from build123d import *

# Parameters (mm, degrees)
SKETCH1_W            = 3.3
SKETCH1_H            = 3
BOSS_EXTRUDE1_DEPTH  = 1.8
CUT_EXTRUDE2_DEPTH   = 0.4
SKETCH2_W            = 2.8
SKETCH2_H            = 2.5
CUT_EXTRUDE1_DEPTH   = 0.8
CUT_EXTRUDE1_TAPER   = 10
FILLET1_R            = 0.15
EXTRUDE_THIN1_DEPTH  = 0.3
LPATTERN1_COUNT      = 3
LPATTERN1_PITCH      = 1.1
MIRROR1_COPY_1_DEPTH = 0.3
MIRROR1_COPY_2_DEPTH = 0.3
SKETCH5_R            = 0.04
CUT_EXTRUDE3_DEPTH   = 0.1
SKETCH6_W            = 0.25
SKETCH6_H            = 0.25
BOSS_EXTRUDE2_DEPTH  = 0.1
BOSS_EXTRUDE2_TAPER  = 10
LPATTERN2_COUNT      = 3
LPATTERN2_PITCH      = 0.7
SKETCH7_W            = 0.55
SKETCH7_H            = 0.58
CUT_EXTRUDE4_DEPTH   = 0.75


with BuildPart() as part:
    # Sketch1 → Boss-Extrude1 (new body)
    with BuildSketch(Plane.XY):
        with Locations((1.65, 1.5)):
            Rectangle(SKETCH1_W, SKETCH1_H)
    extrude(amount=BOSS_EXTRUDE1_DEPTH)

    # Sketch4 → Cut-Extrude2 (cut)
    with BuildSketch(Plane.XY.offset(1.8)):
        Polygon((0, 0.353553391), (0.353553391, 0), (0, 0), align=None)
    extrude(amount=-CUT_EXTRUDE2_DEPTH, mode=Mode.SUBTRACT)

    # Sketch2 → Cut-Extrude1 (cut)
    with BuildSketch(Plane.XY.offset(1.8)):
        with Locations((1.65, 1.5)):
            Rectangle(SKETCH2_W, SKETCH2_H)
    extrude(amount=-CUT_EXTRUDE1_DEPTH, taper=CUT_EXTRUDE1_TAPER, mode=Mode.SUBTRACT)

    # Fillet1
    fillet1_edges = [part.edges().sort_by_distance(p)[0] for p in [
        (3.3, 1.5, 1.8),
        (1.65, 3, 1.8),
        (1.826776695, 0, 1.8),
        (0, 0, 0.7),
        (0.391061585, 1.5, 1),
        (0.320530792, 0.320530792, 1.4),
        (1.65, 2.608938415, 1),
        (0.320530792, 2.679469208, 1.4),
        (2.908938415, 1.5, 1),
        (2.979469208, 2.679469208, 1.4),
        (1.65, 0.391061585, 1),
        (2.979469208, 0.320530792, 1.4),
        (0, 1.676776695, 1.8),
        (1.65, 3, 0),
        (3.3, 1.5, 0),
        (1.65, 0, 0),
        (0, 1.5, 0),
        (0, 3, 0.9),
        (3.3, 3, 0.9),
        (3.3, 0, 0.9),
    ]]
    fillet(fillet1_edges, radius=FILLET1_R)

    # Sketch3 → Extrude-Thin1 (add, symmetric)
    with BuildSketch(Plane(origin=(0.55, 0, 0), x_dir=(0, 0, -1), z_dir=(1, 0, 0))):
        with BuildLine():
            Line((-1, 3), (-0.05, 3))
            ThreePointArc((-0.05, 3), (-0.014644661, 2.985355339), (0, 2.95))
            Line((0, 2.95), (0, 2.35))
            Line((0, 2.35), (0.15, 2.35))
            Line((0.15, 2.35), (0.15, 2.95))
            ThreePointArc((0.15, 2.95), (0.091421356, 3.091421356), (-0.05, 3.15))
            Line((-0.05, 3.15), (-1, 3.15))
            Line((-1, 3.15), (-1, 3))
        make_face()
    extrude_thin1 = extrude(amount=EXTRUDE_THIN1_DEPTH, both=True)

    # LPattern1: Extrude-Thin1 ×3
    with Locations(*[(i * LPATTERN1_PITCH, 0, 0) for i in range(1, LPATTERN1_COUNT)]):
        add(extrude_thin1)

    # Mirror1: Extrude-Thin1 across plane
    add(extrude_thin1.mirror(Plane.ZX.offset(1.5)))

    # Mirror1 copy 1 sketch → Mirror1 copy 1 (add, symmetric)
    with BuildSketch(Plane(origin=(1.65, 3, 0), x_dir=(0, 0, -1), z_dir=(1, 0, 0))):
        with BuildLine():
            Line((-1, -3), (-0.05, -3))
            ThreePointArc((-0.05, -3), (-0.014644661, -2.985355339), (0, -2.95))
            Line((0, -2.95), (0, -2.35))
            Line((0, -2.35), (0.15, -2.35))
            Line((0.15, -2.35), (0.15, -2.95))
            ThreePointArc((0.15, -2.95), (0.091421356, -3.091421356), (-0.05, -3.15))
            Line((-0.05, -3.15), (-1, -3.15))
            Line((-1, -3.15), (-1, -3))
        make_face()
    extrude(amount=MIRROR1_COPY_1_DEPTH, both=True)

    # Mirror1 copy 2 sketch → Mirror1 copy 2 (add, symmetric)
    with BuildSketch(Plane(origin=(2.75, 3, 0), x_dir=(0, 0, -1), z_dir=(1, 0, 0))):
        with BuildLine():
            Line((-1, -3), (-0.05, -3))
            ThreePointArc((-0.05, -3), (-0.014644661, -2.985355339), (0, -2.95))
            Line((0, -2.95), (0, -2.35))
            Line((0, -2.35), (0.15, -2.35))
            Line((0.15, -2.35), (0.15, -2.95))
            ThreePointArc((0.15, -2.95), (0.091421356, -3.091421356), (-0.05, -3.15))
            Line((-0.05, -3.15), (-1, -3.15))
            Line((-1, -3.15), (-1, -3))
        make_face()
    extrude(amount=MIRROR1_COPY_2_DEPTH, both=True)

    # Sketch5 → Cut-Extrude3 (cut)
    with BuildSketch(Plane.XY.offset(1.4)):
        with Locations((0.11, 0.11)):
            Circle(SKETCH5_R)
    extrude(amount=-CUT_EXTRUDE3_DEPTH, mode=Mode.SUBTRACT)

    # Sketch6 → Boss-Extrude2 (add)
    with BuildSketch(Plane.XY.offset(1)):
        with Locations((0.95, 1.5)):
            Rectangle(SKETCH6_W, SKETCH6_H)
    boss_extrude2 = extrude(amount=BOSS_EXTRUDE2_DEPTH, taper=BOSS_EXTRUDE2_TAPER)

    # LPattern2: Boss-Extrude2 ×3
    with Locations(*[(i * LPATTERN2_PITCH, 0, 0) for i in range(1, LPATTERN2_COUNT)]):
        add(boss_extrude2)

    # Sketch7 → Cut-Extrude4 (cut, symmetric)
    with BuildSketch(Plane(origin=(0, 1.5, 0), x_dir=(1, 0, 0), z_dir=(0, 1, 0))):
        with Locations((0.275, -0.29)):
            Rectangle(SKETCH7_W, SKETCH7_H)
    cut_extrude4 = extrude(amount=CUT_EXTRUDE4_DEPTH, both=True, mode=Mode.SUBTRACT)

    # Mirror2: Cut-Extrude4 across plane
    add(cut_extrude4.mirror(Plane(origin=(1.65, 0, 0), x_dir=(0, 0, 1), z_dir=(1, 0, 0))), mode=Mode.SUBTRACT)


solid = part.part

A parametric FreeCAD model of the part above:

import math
import FreeCAD as App
import Part
import Sketcher
from FreeCAD import Vector
Q = App.Units.Quantity


def edges_at(feature, points):
    """Names of the edges that pass closest to the given points."""
    edges = feature.Shape.Edges
    near = lambda p: min(range(len(edges)), key=lambda i: edges[i].distToShape(Part.Vertex(*p))[0])
    return sorted({f"Edge{near(p) + 1}" for p in points})


def add_polygon(sketch, points):
    """Adds a closed chain of lines whose ends are joined by coincident constraints."""
    first, n = sketch.GeometryCount, len(points)
    for a, b in zip(points, points[1:] + points[:1]):
        sketch.addGeometry(Part.LineSegment(App.Vector(*a, 0), App.Vector(*b, 0)), False)
    for i in range(n):
        sketch.addConstraint(Sketcher.Constraint("Coincident", first + i, 2, first + (i + 1) % n, 1))

doc = App.newDocument("Part")
params = doc.addObject("Spreadsheet::Sheet", "Params")
for row, (alias, value) in enumerate([
    ("sketch1_height", "3 mm"),
    ("sketch1_width", "3.3 mm"),
    ("pad1_length", "1.8 mm"),
    ("sketch2_length", "0.5 mm"),
    ("pocket1_length", "0.4 mm"),
    ("sketch3_width", "2.8 mm"),
    ("sketch3_height", "2.5 mm"),
    ("pocket2_length", "0.8 mm"),
    ("pocket2_taper", "-10 deg"),
    ("fillet_radius", "0.15 mm"),
    ("sketch4_radius", "0.2 mm"),
    ("sketch4_radius2", "0.05 mm"),
    ("sketch4_width", "0.6 mm"),
    ("pad2_length", "0.6 mm"),
    ("linearpattern_pitch", "1.1 mm"),
    ("sketch5_radius", "0.2 mm"),
    ("sketch5_radius2", "0.05 mm"),
    ("sketch5_width", "0.6 mm"),
    ("pad3_length", "0.6 mm"),
    ("sketch6_radius", "0.2 mm"),
    ("sketch6_radius2", "0.05 mm"),
    ("sketch6_width", "0.6 mm"),
    ("pad4_length", "0.6 mm"),
    ("sketch7_diameter", "0.08 mm"),
    ("pocket3_length", "0.1 mm"),
    ("sketch8_width", "0.25 mm"),
    ("pad5_length", "0.1 mm"),
    ("pad5_taper", "-10 deg"),
    ("linearpattern2_pitch", "0.7 mm"),
    ("sketch9_width", "0.55 mm"),
    ("sketch9_height", "0.58 mm"),
    ("pocket4_length", "1.5 mm"),
], start=1):
    params.set(f"A{row}", alias)
    params.set(f"B{row}", "=" + value)
    params.setAlias(f"B{row}", alias)

body = doc.addObject("PartDesign::Body", "Body")

sketch1 = body.newObject("Sketcher::SketchObject", "Sketch")
sketch1.AttachmentSupport = (doc.getObject("XY_Plane"), [""])
sketch1.MapMode = "FlatFace"
add_polygon(sketch1, [(0, 3), (0, 0), (3.3, 0), (3.3, 3)])
sketch1.addConstraint(Sketcher.Constraint("Vertical", 0))
sketch1.addConstraint(Sketcher.Constraint("Horizontal", 1))
sketch1.addConstraint(Sketcher.Constraint("Vertical", 2))
sketch1.addConstraint(Sketcher.Constraint("Horizontal", 3))
sketch1.addConstraint(Sketcher.Constraint("Coincident", 0, 2, -1, 1))
sketch1.addConstraint(Sketcher.Constraint("DistanceY", 0, 2, 0, 1, Q("3 mm")))
sketch1.addConstraint(Sketcher.Constraint("DistanceX", 1, 1, 1, 2, Q("3.3 mm")))
sketch1.setExpression("Constraints[9]", "Params.sketch1_height")
sketch1.setExpression("Constraints[10]", "Params.sketch1_width")
pad1 = body.newObject("PartDesign::Pad", "Pad")
pad1.Profile = sketch1
pad1.setExpression("Length", "Params.pad1_length")

sketch2 = body.newObject("Sketcher::SketchObject", "Sketch001")
sketch2.AttachmentSupport = (doc.getObject("XY_Plane"), [""])
sketch2.MapMode = "FlatFace"
sketch2.AttachmentOffset = App.Placement(Vector(0, 0, 1.8), App.Rotation())
add_polygon(sketch2, [(0.35, 0), (0, 0.35), (0, 0)])
sketch2.addConstraint(Sketcher.Constraint("Vertical", 1))
sketch2.addConstraint(Sketcher.Constraint("Horizontal", 2))
sketch2.addConstraint(Sketcher.Constraint("Coincident", 1, 2, -1, 1))
sketch2.addConstraint(Sketcher.Constraint("Equal", 2, 1))
sketch2.addConstraint(Sketcher.Constraint("Distance", 0, Q("0.5 mm")))
sketch2.setExpression("Constraints[7]", "Params.sketch2_length")
pocket1 = body.newObject("PartDesign::Pocket", "Pocket")
pocket1.Profile = sketch2
pocket1.setExpression("Length", "Params.pocket1_length")

sketch3 = body.newObject("Sketcher::SketchObject", "Sketch002")
sketch3.AttachmentSupport = (doc.getObject("XY_Plane"), [""])
sketch3.MapMode = "FlatFace"
sketch3.AttachmentOffset = App.Placement(Vector(0, 0, 1.8), App.Rotation())
add_polygon(sketch3, [(0.2, 2.8), (0.2, 0.2), (3, 0.2), (3, 2.8)])
sketch3.addConstraint(Sketcher.Constraint("Vertical", 0))
sketch3.addConstraint(Sketcher.Constraint("Horizontal", 1))
sketch3.addConstraint(Sketcher.Constraint("Vertical", 2))
sketch3.addConstraint(Sketcher.Constraint("Horizontal", 3))
sketch3.addConstraint(Sketcher.Constraint("DistanceX", 1, 1, 1, 2, Q("2.8 mm")))
sketch3.addConstraint(Sketcher.Constraint("DistanceY", 0, 2, 0, 1, Q("2.5 mm")))
sketch3.addConstraint(Sketcher.Constraint("DistanceX", -1, 1, 0, 2, Q("0.25 mm")))
sketch3.addConstraint(Sketcher.Constraint("DistanceY", -1, 1, 0, 2, Q("0.25 mm")))
sketch3.setExpression("Constraints[8]", "Params.sketch3_width")
sketch3.setExpression("Constraints[9]", "Params.sketch3_height")
pocket2 = body.newObject("PartDesign::Pocket", "Pocket001")
pocket2.Profile = sketch3
pocket2.setExpression("Length", "Params.pocket2_length")
pocket2.setExpression("TaperAngle", "Params.pocket2_taper")
doc.recompute()

fillet = body.newObject("PartDesign::Fillet", "Fillet")
fillet.Base = (pocket2, edges_at(pocket2, [
    (3.3, 1.5, 1.8),
    (1.65, 3, 1.8),
    (1.827, 0, 1.8),
    (0, 0, 0.7),
    (0.391, 1.5, 1),
    (0.321, 0.321, 1.4),
    (1.65, 2.609, 1),
    (0.321, 2.679, 1.4),
    (2.909, 1.5, 1),
    (2.979, 2.679, 1.4),
    (1.65, 0.391, 1),
    (2.979, 0.321, 1.4),
    (0, 1.677, 1.8),
    (1.65, 3, 0),
    (3.3, 1.5, 0),
    (1.65, 0, 0),
    (0, 1.5, 0),
    (0, 3, 0.9),
    (3.3, 3, 0.9),
    (3.3, 0, 0.9),
]))
fillet.setExpression("Radius", "Params.fillet_radius")

sketch4 = body.newObject("Sketcher::SketchObject", "Sketch003")
sketch4.AttachmentSupport = (doc.getObject("YZ_Plane"), [""])
sketch4.MapMode = "FlatFace"
sketch4.AttachmentOffset = App.Placement(Vector(0, 0, 0.55), App.Rotation())
sketch4.addGeometry(Part.LineSegment(Vector(3, 1, 0), Vector(3, 0.05, 0)), False)
sketch4.addGeometry(Part.ArcOfCircle(Part.Circle(Vector(2.95, 0.05, 0), Vector(0, 0, 1), 0.05), math.radians(-90), math.radians(0)), False)
sketch4.addGeometry(Part.LineSegment(Vector(2.95, 0, 0), Vector(2.35, 0, 0)), False)
sketch4.addGeometry(Part.LineSegment(Vector(2.35, 0, 0), Vector(2.35, -0.15, 0)), False)
sketch4.addGeometry(Part.LineSegment(Vector(2.35, -0.15, 0), Vector(2.95, -0.15, 0)), False)
sketch4.addGeometry(Part.ArcOfCircle(Part.Circle(Vector(2.95, 0.05, 0), Vector(0, 0, 1), 0.2), math.radians(-90), math.radians(0)), False)
sketch4.addGeometry(Part.LineSegment(Vector(3.15, 0.05, 0), Vector(3.15, 1, 0)), False)
sketch4.addGeometry(Part.LineSegment(Vector(3.15, 1, 0), Vector(3, 1, 0)), False)
sketch4.addConstraint(Sketcher.Constraint("Tangent", 0, 2, 1, 2))
sketch4.addConstraint(Sketcher.Constraint("Tangent", 1, 1, 2, 1))
sketch4.addConstraint(Sketcher.Constraint("Coincident", 2, 2, 3, 1))
sketch4.addConstraint(Sketcher.Constraint("Coincident", 3, 2, 4, 1))
sketch4.addConstraint(Sketcher.Constraint("Tangent", 4, 2, 5, 1))
sketch4.addConstraint(Sketcher.Constraint("Tangent", 5, 2, 6, 1))
sketch4.addConstraint(Sketcher.Constraint("Coincident", 6, 2, 7, 1))
sketch4.addConstraint(Sketcher.Constraint("Coincident", 7, 2, 0, 1))
sketch4.addConstraint(Sketcher.Constraint("Vertical", 0))
sketch4.addConstraint(Sketcher.Constraint("Horizontal", 2))
sketch4.addConstraint(Sketcher.Constraint("Vertical", 3))
sketch4.addConstraint(Sketcher.Constraint("Horizontal", 4))
sketch4.addConstraint(Sketcher.Constraint("Vertical", 6))
sketch4.addConstraint(Sketcher.Constraint("Horizontal", 7))
sketch4.addConstraint(Sketcher.Constraint("Coincident", 5, 3, 1, 3))
sketch4.addConstraint(Sketcher.Constraint("PointOnObject", 1, 1, -1))
sketch4.addConstraint(Sketcher.Constraint("Radius", 5, Q("0.2 mm")))
sketch4.addConstraint(Sketcher.Constraint("Radius", 1, Q("0.05 mm")))
sketch4.addConstraint(Sketcher.Constraint("DistanceX", 2, 2, 2, 1, Q("0.6 mm")))
sketch4.addConstraint(Sketcher.Constraint("DistanceX", -1, 1, 0, 2, Q("3 mm")))
sketch4.addConstraint(Sketcher.Constraint("DistanceY", -1, 1, 6, 2, Q("1 mm")))
sketch4.setExpression("Constraints[16]", "Params.sketch4_radius")
sketch4.setExpression("Constraints[17]", "Params.sketch4_radius2")
sketch4.setExpression("Constraints[18]", "Params.sketch4_width")
pad2 = body.newObject("PartDesign::Pad", "Pad001")
pad2.Profile = sketch4
pad2.setExpression("Length", "Params.pad2_length")
pad2.Midplane = True
doc.recompute()

linearpattern = body.newObject("PartDesign::LinearPattern", "LinearPattern")
linearpattern.Originals = [pad2]
linearpattern.Direction = (doc.getObject("X_Axis"), [""])
linearpattern.Mode = "offset"
linearpattern.setExpression("Offset", "Params.linearpattern_pitch")
linearpattern.Occurrences = 3
body.Tip = linearpattern
doc.recompute()

datumplane = body.newObject("PartDesign::Plane", "DatumPlane")
datumplane.AttachmentSupport = (doc.getObject("XZ_Plane"), [""])
datumplane.MapMode = "FlatFace"
datumplane.AttachmentOffset = App.Placement(Vector(0, 0, -1.5), App.Rotation())
mirrored = body.newObject("PartDesign::Mirrored", "Mirrored")
mirrored.Originals = [pad2]
mirrored.MirrorPlane = (datumplane, [""])
body.Tip = mirrored

sketch5 = body.newObject("Sketcher::SketchObject", "Sketch004")
sketch5.AttachmentSupport = (doc.getObject("YZ_Plane"), [""])
sketch5.MapMode = "FlatFace"
sketch5.AttachmentOffset = App.Placement(Vector(0, 0, 1.65), App.Rotation())
sketch5.addGeometry(Part.LineSegment(Vector(0, 0.05, 0), Vector(0, 1, 0)), False)
sketch5.addGeometry(Part.LineSegment(Vector(0, 1, 0), Vector(-0.15, 1, 0)), False)
sketch5.addGeometry(Part.LineSegment(Vector(-0.15, 1, 0), Vector(-0.15, 0.05, 0)), False)
sketch5.addGeometry(Part.ArcOfCircle(Part.Circle(Vector(0.05, 0.05, 0), Vector(0, 0, 1), 0.2), math.radians(-180), math.radians(-90)), False)
sketch5.addGeometry(Part.LineSegment(Vector(0.05, -0.15, 0), Vector(0.65, -0.15, 0)), False)
sketch5.addGeometry(Part.LineSegment(Vector(0.65, -0.15, 0), Vector(0.65, 0, 0)), False)
sketch5.addGeometry(Part.LineSegment(Vector(0.65, 0, 0), Vector(0.05, 0, 0)), False)
sketch5.addGeometry(Part.ArcOfCircle(Part.Circle(Vector(0.05, 0.05, 0), Vector(0, 0, 1), 0.05), math.radians(180), math.radians(270)), False)
sketch5.addConstraint(Sketcher.Constraint("Coincident", 0, 2, 1, 1))
sketch5.addConstraint(Sketcher.Constraint("Coincident", 1, 2, 2, 1))
sketch5.addConstraint(Sketcher.Constraint("Tangent", 2, 2, 3, 1))
sketch5.addConstraint(Sketcher.Constraint("Tangent", 3, 2, 4, 1))
sketch5.addConstraint(Sketcher.Constraint("Coincident", 4, 2, 5, 1))
sketch5.addConstraint(Sketcher.Constraint("Coincident", 5, 2, 6, 1))
sketch5.addConstraint(Sketcher.Constraint("Tangent", 6, 2, 7, 2))
sketch5.addConstraint(Sketcher.Constraint("Tangent", 7, 1, 0, 1))
sketch5.addConstraint(Sketcher.Constraint("Vertical", 0))
sketch5.addConstraint(Sketcher.Constraint("Horizontal", 1))
sketch5.addConstraint(Sketcher.Constraint("Vertical", 2))
sketch5.addConstraint(Sketcher.Constraint("Horizontal", 4))
sketch5.addConstraint(Sketcher.Constraint("Vertical", 5))
sketch5.addConstraint(Sketcher.Constraint("Horizontal", 6))
sketch5.addConstraint(Sketcher.Constraint("Coincident", 7, 3, 3, 3))
sketch5.addConstraint(Sketcher.Constraint("PointOnObject", 0, 2, -2))
sketch5.addConstraint(Sketcher.Constraint("PointOnObject", 5, 2, -1))
sketch5.addConstraint(Sketcher.Constraint("Radius", 3, Q("0.2 mm")))
sketch5.addConstraint(Sketcher.Constraint("Radius", 7, Q("0.05 mm")))
sketch5.addConstraint(Sketcher.Constraint("DistanceX", 4, 1, 4, 2, Q("0.6 mm")))
sketch5.addConstraint(Sketcher.Constraint("DistanceY", -1, 1, 0, 2, Q("1 mm")))
sketch5.setExpression("Constraints[17]", "Params.sketch5_radius")
sketch5.setExpression("Constraints[18]", "Params.sketch5_radius2")
sketch5.setExpression("Constraints[19]", "Params.sketch5_width")
pad3 = body.newObject("PartDesign::Pad", "Pad002")
pad3.Profile = sketch5
pad3.setExpression("Length", "Params.pad3_length")
pad3.Midplane = True

sketch6 = body.newObject("Sketcher::SketchObject", "Sketch005")
sketch6.AttachmentSupport = (doc.getObject("YZ_Plane"), [""])
sketch6.MapMode = "FlatFace"
sketch6.AttachmentOffset = App.Placement(Vector(0, 0, 2.75), App.Rotation())
sketch6.addGeometry(Part.LineSegment(Vector(0, 0.05, 0), Vector(0, 1, 0)), False)
sketch6.addGeometry(Part.LineSegment(Vector(0, 1, 0), Vector(-0.15, 1, 0)), False)
sketch6.addGeometry(Part.LineSegment(Vector(-0.15, 1, 0), Vector(-0.15, 0.05, 0)), False)
sketch6.addGeometry(Part.ArcOfCircle(Part.Circle(Vector(0.05, 0.05, 0), Vector(0, 0, 1), 0.2), math.radians(-180), math.radians(-90)), False)
sketch6.addGeometry(Part.LineSegment(Vector(0.05, -0.15, 0), Vector(0.65, -0.15, 0)), False)
sketch6.addGeometry(Part.LineSegment(Vector(0.65, -0.15, 0), Vector(0.65, 0, 0)), False)
sketch6.addGeometry(Part.LineSegment(Vector(0.65, 0, 0), Vector(0.05, 0, 0)), False)
sketch6.addGeometry(Part.ArcOfCircle(Part.Circle(Vector(0.05, 0.05, 0), Vector(0, 0, 1), 0.05), math.radians(180), math.radians(270)), False)
sketch6.addConstraint(Sketcher.Constraint("Coincident", 0, 2, 1, 1))
sketch6.addConstraint(Sketcher.Constraint("Coincident", 1, 2, 2, 1))
sketch6.addConstraint(Sketcher.Constraint("Tangent", 2, 2, 3, 1))
sketch6.addConstraint(Sketcher.Constraint("Tangent", 3, 2, 4, 1))
sketch6.addConstraint(Sketcher.Constraint("Coincident", 4, 2, 5, 1))
sketch6.addConstraint(Sketcher.Constraint("Coincident", 5, 2, 6, 1))
sketch6.addConstraint(Sketcher.Constraint("Tangent", 6, 2, 7, 2))
sketch6.addConstraint(Sketcher.Constraint("Tangent", 7, 1, 0, 1))
sketch6.addConstraint(Sketcher.Constraint("Vertical", 0))
sketch6.addConstraint(Sketcher.Constraint("Horizontal", 1))
sketch6.addConstraint(Sketcher.Constraint("Vertical", 2))
sketch6.addConstraint(Sketcher.Constraint("Horizontal", 4))
sketch6.addConstraint(Sketcher.Constraint("Vertical", 5))
sketch6.addConstraint(Sketcher.Constraint("Horizontal", 6))
sketch6.addConstraint(Sketcher.Constraint("Coincident", 7, 3, 3, 3))
sketch6.addConstraint(Sketcher.Constraint("PointOnObject", 0, 2, -2))
sketch6.addConstraint(Sketcher.Constraint("PointOnObject", 5, 2, -1))
sketch6.addConstraint(Sketcher.Constraint("Radius", 3, Q("0.2 mm")))
sketch6.addConstraint(Sketcher.Constraint("Radius", 7, Q("0.05 mm")))
sketch6.addConstraint(Sketcher.Constraint("DistanceX", 4, 1, 4, 2, Q("0.6 mm")))
sketch6.addConstraint(Sketcher.Constraint("DistanceY", -1, 1, 0, 2, Q("1 mm")))
sketch6.setExpression("Constraints[17]", "Params.sketch6_radius")
sketch6.setExpression("Constraints[18]", "Params.sketch6_radius2")
sketch6.setExpression("Constraints[19]", "Params.sketch6_width")
pad4 = body.newObject("PartDesign::Pad", "Pad003")
pad4.Profile = sketch6
pad4.setExpression("Length", "Params.pad4_length")
pad4.Midplane = True

sketch7 = body.newObject("Sketcher::SketchObject", "Sketch006")
sketch7.AttachmentSupport = (doc.getObject("XY_Plane"), [""])
sketch7.MapMode = "FlatFace"
sketch7.AttachmentOffset = App.Placement(Vector(0, 0, 1.4), App.Rotation())
sketch7.addGeometry(Part.Circle(Vector(0.11, 0.11, 0), Vector(0, 0, 1), 0.04), False)
sketch7.addConstraint(Sketcher.Constraint("Diameter", 0, Q("0.08 mm")))
sketch7.addConstraint(Sketcher.Constraint("DistanceX", -1, 1, 0, 3, Q("0.11 mm")))
sketch7.addConstraint(Sketcher.Constraint("DistanceY", -1, 1, 0, 3, Q("0.11 mm")))
sketch7.setExpression("Constraints[0]", "Params.sketch7_diameter")
pocket3 = body.newObject("PartDesign::Pocket", "Pocket002")
pocket3.Profile = sketch7
pocket3.setExpression("Length", "Params.pocket3_length")

sketch8 = body.newObject("Sketcher::SketchObject", "Sketch007")
sketch8.AttachmentSupport = (doc.getObject("XY_Plane"), [""])
sketch8.MapMode = "FlatFace"
sketch8.AttachmentOffset = App.Placement(Vector(0, 0, 1), App.Rotation())
add_polygon(sketch8, [(0.82, 1.62), (0.82, 1.38), (1.07, 1.38), (1.07, 1.62)])
sketch8.addConstraint(Sketcher.Constraint("Vertical", 0))
sketch8.addConstraint(Sketcher.Constraint("Horizontal", 1))
sketch8.addConstraint(Sketcher.Constraint("Vertical", 2))
sketch8.addConstraint(Sketcher.Constraint("Horizontal", 3))
sketch8.addConstraint(Sketcher.Constraint("Equal", 3, 0))
sketch8.addConstraint(Sketcher.Constraint("DistanceX", 1, 1, 1, 2, Q("0.25 mm")))
sketch8.addConstraint(Sketcher.Constraint("DistanceX", -1, 1, 0, 2, Q("0.825 mm")))
sketch8.addConstraint(Sketcher.Constraint("DistanceY", -1, 1, 0, 2, Q("1.375 mm")))
sketch8.setExpression("Constraints[9]", "Params.sketch8_width")
pad5 = body.newObject("PartDesign::Pad", "Pad004")
pad5.Profile = sketch8
pad5.setExpression("Length", "Params.pad5_length")
pad5.setExpression("TaperAngle", "Params.pad5_taper")
doc.recompute()

linearpattern2 = body.newObject("PartDesign::LinearPattern", "LinearPattern001")
linearpattern2.Originals = [pad5]
linearpattern2.Direction = (doc.getObject("X_Axis"), [""])
linearpattern2.Mode = "offset"
linearpattern2.setExpression("Offset", "Params.linearpattern2_pitch")
linearpattern2.Occurrences = 3
body.Tip = linearpattern2

sketch9 = body.newObject("Sketcher::SketchObject", "Sketch008")
sketch9.AttachmentSupport = (doc.getObject("XZ_Plane"), [""])
sketch9.MapMode = "FlatFace"
sketch9.AttachmentOffset = App.Placement(Vector(0, 0, -1.5), App.Rotation())
add_polygon(sketch9, [(0, 0), (0, 0.6), (0.6, 0.6), (0.6, 0)])
sketch9.addConstraint(Sketcher.Constraint("Vertical", 0))
sketch9.addConstraint(Sketcher.Constraint("Horizontal", 1))
sketch9.addConstraint(Sketcher.Constraint("Vertical", 2))
sketch9.addConstraint(Sketcher.Constraint("Horizontal", 3))
sketch9.addConstraint(Sketcher.Constraint("Coincident", 3, 2, -1, 1))
sketch9.addConstraint(Sketcher.Constraint("DistanceX", 1, 1, 1, 2, Q("0.55 mm")))
sketch9.addConstraint(Sketcher.Constraint("DistanceY", 0, 1, 0, 2, Q("0.58 mm")))
sketch9.setExpression("Constraints[9]", "Params.sketch9_width")
sketch9.setExpression("Constraints[10]", "Params.sketch9_height")
pocket4 = body.newObject("PartDesign::Pocket", "Pocket003")
pocket4.Profile = sketch9
pocket4.setExpression("Length", "Params.pocket4_length")
pocket4.Midplane = True
doc.recompute()

datumplane2 = body.newObject("PartDesign::Plane", "DatumPlane001")
datumplane2.AttachmentSupport = (doc.getObject("YZ_Plane"), [""])
datumplane2.MapMode = "FlatFace"
datumplane2.AttachmentOffset = App.Placement(Vector(0, 0, 1.65), App.Rotation())
mirrored2 = body.newObject("PartDesign::Mirrored", "Mirrored001")
mirrored2.Originals = [pocket4]
mirrored2.MirrorPlane = (datumplane2, [""])
body.Tip = mirrored2

doc.recompute()
